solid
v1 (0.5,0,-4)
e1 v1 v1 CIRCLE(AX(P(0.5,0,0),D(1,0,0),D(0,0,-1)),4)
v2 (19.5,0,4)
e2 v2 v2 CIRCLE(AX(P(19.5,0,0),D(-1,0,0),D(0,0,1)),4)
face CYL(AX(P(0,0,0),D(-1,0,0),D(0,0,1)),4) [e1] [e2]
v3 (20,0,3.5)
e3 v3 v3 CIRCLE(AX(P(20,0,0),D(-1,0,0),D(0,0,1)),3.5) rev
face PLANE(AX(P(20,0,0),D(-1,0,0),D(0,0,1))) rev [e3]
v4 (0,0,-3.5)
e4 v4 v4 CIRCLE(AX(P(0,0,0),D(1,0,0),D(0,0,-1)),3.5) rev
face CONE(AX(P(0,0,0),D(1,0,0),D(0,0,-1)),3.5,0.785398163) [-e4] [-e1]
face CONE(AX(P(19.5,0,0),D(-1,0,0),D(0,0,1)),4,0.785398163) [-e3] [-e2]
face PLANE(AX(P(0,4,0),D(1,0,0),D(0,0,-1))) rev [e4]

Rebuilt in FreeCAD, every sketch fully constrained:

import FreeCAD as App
import Part
import Sketcher
Q = App.Units.Quantity


def edges_at(feature, points):
    """Names of the edges that pass closest to the given points."""
    edges = feature.Shape.Edges
    near = lambda p: min(range(len(edges)), key=lambda i: edges[i].distToShape(Part.Vertex(*p))[0])
    return sorted({f"Edge{near(p) + 1}" for p in points})

doc = App.newDocument("Part")
body = doc.addObject("PartDesign::Body", "Body")

sketch1 = body.newObject("Sketcher::SketchObject", "Sketch")
sketch1.AttachmentSupport = (doc.getObject("XY_Plane"), [""])
sketch1.MapMode = "FlatFace"
sketch1.addGeometry(Part.LineSegment(App.Vector(0, 4, 0), App.Vector(0, 0, 0)), False)
sketch1.addGeometry(Part.LineSegment(App.Vector(0, 0, 0), App.Vector(20, 0, 0)), False)
sketch1.addGeometry(Part.LineSegment(App.Vector(20, 0, 0), App.Vector(20, 4, 0)), False)
sketch1.addGeometry(Part.LineSegment(App.Vector(20, 4, 0), App.Vector(0, 4, 0)), False)
sketch1.addConstraint(Sketcher.Constraint("Coincident", 0, 2, 1, 1))
sketch1.addConstraint(Sketcher.Constraint("Coincident", 1, 2, 2, 1))
sketch1.addConstraint(Sketcher.Constraint("Coincident", 2, 2, 3, 1))
sketch1.addConstraint(Sketcher.Constraint("Coincident", 3, 2, 0, 1))
sketch1.addConstraint(Sketcher.Constraint("Vertical", 0))
sketch1.addConstraint(Sketcher.Constraint("Horizontal", 1))
sketch1.addConstraint(Sketcher.Constraint("Vertical", 2))
sketch1.addConstraint(Sketcher.Constraint("Horizontal", 3))
sketch1.addConstraint(Sketcher.Constraint("Coincident", 0, 2, -1, 1))
sketch1.addConstraint(Sketcher.Constraint("DistanceX", 1, 1, 1, 2, Q("20 mm")))
sketch1.addConstraint(Sketcher.Constraint("DistanceY", 0, 2, 0, 1, Q("4 mm")))
revolution = body.newObject("PartDesign::Revolution", "Revolution")
revolution.Profile = sketch1
revolution.ReferenceAxis = (sketch1, ["H_Axis"])
revolution.Angle = 360
doc.recompute()

chamfer = body.newObject("PartDesign::Chamfer", "Chamfer")
chamfer.Base = (revolution, edges_at(revolution, [(0, 0, -4), (20, 0, -4)]))
chamfer.Size = 0.5

doc.recompute()
